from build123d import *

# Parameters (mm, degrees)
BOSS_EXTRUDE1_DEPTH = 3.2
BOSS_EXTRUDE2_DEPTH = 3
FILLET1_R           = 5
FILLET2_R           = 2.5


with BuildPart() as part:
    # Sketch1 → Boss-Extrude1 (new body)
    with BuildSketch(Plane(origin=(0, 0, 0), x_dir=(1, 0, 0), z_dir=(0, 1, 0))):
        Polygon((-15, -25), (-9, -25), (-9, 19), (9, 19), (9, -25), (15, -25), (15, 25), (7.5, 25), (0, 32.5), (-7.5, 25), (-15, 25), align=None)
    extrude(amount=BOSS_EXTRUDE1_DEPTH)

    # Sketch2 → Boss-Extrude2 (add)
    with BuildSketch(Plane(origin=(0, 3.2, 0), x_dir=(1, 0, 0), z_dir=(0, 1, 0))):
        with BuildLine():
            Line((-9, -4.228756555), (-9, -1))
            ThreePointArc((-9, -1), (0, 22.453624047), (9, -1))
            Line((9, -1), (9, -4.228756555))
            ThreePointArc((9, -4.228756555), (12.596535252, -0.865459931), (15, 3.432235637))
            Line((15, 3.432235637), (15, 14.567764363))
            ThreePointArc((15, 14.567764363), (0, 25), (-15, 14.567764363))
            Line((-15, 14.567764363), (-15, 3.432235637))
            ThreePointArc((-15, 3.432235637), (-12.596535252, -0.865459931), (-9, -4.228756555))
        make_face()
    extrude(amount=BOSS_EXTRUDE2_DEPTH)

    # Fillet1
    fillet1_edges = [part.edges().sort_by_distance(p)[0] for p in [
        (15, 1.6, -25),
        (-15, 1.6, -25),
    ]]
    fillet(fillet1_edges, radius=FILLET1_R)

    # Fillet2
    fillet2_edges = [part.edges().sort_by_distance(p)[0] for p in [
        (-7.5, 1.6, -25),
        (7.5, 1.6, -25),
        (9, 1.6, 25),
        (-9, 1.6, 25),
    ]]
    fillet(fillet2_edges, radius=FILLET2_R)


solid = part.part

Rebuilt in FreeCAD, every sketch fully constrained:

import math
import FreeCAD as App
import Part
import Sketcher


def edges_at(feature, points):
    """Names of the edges that pass closest to the given points."""
    edges = feature.Shape.Edges
    near = lambda p: min(range(len(edges)), key=lambda i: edges[i].distToShape(Part.Vertex(*p))[0])
    return sorted({f"Edge{near(p) + 1}" for p in points})

doc = App.newDocument("Part")
params = doc.addObject("Spreadsheet::Sheet", "Params")
for row, (alias, value) in enumerate([
    ("sketch1_width", "6 mm"),
    ("sketch1_width2", "18 mm"),
    ("sketch1_height", "44 mm"),
    ("sketch1_height2", "50 mm"),
    ("sketch1_width3", "7.5 mm"),
    ("pad1_length", "3.2 mm"),
    ("sketch2_radius", "16 mm"),
    ("pad2_length", "3 mm"),
    ("fillet_radius", "5 mm"),
    ("fillet2_radius", "2.5 mm"),
], start=1):
    params.set(f"A{row}", alias)
    params.set(f"B{row}", "=" + value)
    params.setAlias(f"B{row}", alias)

body = doc.addObject("PartDesign::Body", "Body")

# Sketch on XZ plane
sketch1 = body.newObject("Sketcher::SketchObject", "Sketch")
sketch1.AttachmentSupport = (doc.getObject("XZ_Plane"), [""])
sketch1.MapMode = "FlatFace"
sketch1.addGeometry([
    Part.LineSegment(App.Vector(-15, 25, 0), App.Vector(-9, 25, 0)),  # 0
    Part.LineSegment(App.Vector(-9, 25, 0), App.Vector(-9, -19, 0)),  # 1
    Part.LineSegment(App.Vector(-9, -19, 0), App.Vector(9, -19, 0)),  # 2
    Part.LineSegment(App.Vector(9, -19, 0), App.Vector(9, 25, 0)),  # 3
    Part.LineSegment(App.Vector(9, 25, 0), App.Vector(15, 25, 0)),  # 4
    Part.LineSegment(App.Vector(15, 25, 0), App.Vector(15, -25, 0)),  # 5
    Part.LineSegment(App.Vector(15, -25, 0), App.Vector(8, -25, 0)),  # 6
    Part.LineSegment(App.Vector(8, -25, 0), App.Vector(0, -32, 0)),  # 7
    Part.LineSegment(App.Vector(0, -32, 0), App.Vector(-8, -25, 0)),  # 8
    Part.LineSegment(App.Vector(-8, -25, 0), App.Vector(-15, -25, 0)),  # 9
    Part.LineSegment(App.Vector(-15, -25, 0), App.Vector(-15, 25, 0)),  # 10
], False)
sketch1.addConstraint([
    Sketcher.Constraint("Coincident", 0, 2, 1, 1),
    Sketcher.Constraint("Coincident", 1, 2, 2, 1),
    Sketcher.Constraint("Coincident", 2, 2, 3, 1),
    Sketcher.Constraint("Coincident", 3, 2, 4, 1),
    Sketcher.Constraint("Coincident", 4, 2, 5, 1),
    Sketcher.Constraint("Coincident", 5, 2, 6, 1),
    Sketcher.Constraint("Coincident", 6, 2, 7, 1),
    Sketcher.Constraint("Coincident", 7, 2, 8, 1),
    Sketcher.Constraint("Coincident", 8, 2, 9, 1),
    Sketcher.Constraint("Coincident", 9, 2, 10, 1),
    Sketcher.Constraint("Coincident", 10, 2, 0, 1),
    Sketcher.Constraint("Horizontal", 0),
    Sketcher.Constraint("Vertical", 1),
    Sketcher.Constraint("Horizontal", 2),
    Sketcher.Constraint("Vertical", 3),
    Sketcher.Constraint("Horizontal", 4),
    Sketcher.Constraint("Vertical", 5),
    Sketcher.Constraint("Horizontal", 6),
    Sketcher.Constraint("Horizontal", 9),
    Sketcher.Constraint("Vertical", 10),
    Sketcher.Constraint("Symmetric", 4, 2, 9, 2, -1, 1),
    Sketcher.Constraint("Symmetric", 0, 2, 3, 2, -2),
    Sketcher.Constraint("Symmetric", 6, 2, 8, 2, -2),
    Sketcher.Constraint("PointOnObject", 7, 2, -2),
    Sketcher.Constraint("Perpendicular", 7, 8),
    Sketcher.Constraint("DistanceX", 0, 1, 0, 2, 6.0),
    Sketcher.Constraint("DistanceX", 2, 1, 2, 2, 18.0),
    Sketcher.Constraint("DistanceY", 1, 2, 1, 1, 44.0),
    Sketcher.Constraint("DistanceY", 5, 2, 5, 1, 50.0),
    Sketcher.Constraint("DistanceX", 6, 2, 6, 1, 7.5),
])
sketch1.setExpression("Constraints[25]", "Params.sketch1_width")
sketch1.setExpression("Constraints[26]", "Params.sketch1_width2")
sketch1.setExpression("Constraints[27]", "Params.sketch1_height")
sketch1.setExpression("Constraints[28]", "Params.sketch1_height2")
sketch1.setExpression("Constraints[29]", "Params.sketch1_width3")
pad1 = body.newObject("PartDesign::Pad", "Pad")
pad1.Profile = sketch1
pad1.setExpression("Length", "Params.pad1_length")
pad1.Reversed = True

# Sketch on XZ plane
sketch2 = body.newObject("Sketcher::SketchObject", "Sketch001")
sketch2.AttachmentSupport = (doc.getObject("XZ_Plane"), [""])
sketch2.MapMode = "FlatFace"
sketch2.AttachmentOffset = App.Placement(App.Vector(0, 0, -3.2), App.Rotation())
sketch2.addGeometry([
    Part.LineSegment(App.Vector(-9, 4.2, 0), App.Vector(-9, 1, 0)),  # 0
    Part.ArcOfCircle(Part.Circle(App.Vector(0, -9, 0), App.Vector(0, 0, 1), 13.5), math.radians(132), math.radians(408)),  # 1
    Part.LineSegment(App.Vector(9, 1, 0), App.Vector(9, 4.2, 0)),  # 2
    Part.ArcOfCircle(Part.Circle(App.Vector(0, -9, 0), App.Vector(0, 0, 1), 16), math.radians(20), math.radians(56)),  # 3
    Part.LineSegment(App.Vector(15, -3.4, 0), App.Vector(15, -14.6, 0)),  # 4
    Part.ArcOfCircle(Part.Circle(App.Vector(0, -9, 0), App.Vector(0, 0, 1), 16), math.radians(-160), math.radians(-20)),  # 5
    Part.LineSegment(App.Vector(-15, -14.6, 0), App.Vector(-15, -3.4, 0)),  # 6
    Part.ArcOfCircle(Part.Circle(App.Vector(0, -9, 0), App.Vector(0, 0, 1), 16), math.radians(124), math.radians(160)),  # 7
], False)
sketch2.addConstraint([
    Sketcher.Constraint("Coincident", 0, 2, 1, 1),
    Sketcher.Constraint("Coincident", 1, 2, 2, 1),
    Sketcher.Constraint("Coincident", 2, 2, 3, 2),
    Sketcher.Constraint("Coincident", 3, 1, 4, 1),
    Sketcher.Constraint("Coincident", 4, 2, 5, 2),
    Sketcher.Constraint("Coincident", 5, 1, 6, 1),
    Sketcher.Constraint("Coincident", 6, 2, 7, 2),
    Sketcher.Constraint("Coincident", 7, 1, 0, 1),
    Sketcher.Constraint("Vertical", 0),
    Sketcher.Constraint("Vertical", 2),
    Sketcher.Constraint("Vertical", 4),
    Sketcher.Constraint("Vertical", 6),
    Sketcher.Constraint("Coincident", 3, 3, 1, 3),
    Sketcher.Constraint("Coincident", 5, 3, 1, 3),
    Sketcher.Constraint("Coincident", 7, 3, 1, 3),
    Sketcher.Constraint("Equal", 3, 5),
    Sketcher.Constraint("Equal", 5, 7),
    Sketcher.Constraint("Symmetric", 0, 2, 1, 2, -2),
    Sketcher.Constraint("Horizontal", 4, 2, 5, 1),
    Sketcher.Constraint("Radius", 3, 16.0),
    Sketcher.Constraint("DistanceY", 1, 3, -1, 1, 9.0),
    Sketcher.Constraint("DistanceX", 0, 2, -1, 1, 9.0),
    Sketcher.Constraint("DistanceY", -1, 1, 0, 2, 1.0),
    Sketcher.Constraint("DistanceX", -1, 1, 3, 1, 15.0),
])
sketch2.setExpression("Constraints[19]", "Params.sketch2_radius")
pad2 = body.newObject("PartDesign::Pad", "Pad001")
pad2.Profile = sketch2
pad2.setExpression("Length", "Params.pad2_length")
pad2.Reversed = True
doc.recompute()

fillet = body.newObject("PartDesign::Fillet", "Fillet")
fillet.Base = (pad2, edges_at(pad2, [(15, 1.6, -25), (-15, 1.6, -25)]))
fillet.setExpression("Radius", "Params.fillet_radius")
doc.recompute()

fillet2 = body.newObject("PartDesign::Fillet", "Fillet001")
fillet2.Base = (fillet, edges_at(fillet, [
    (-7.5, 1.6, -25),
    (7.5, 1.6, -25),
    (9, 1.6, 25),
    (-9, 1.6, 25),
]))
fillet2.setExpression("Radius", "Params.fillet2_radius")

doc.recompute()
